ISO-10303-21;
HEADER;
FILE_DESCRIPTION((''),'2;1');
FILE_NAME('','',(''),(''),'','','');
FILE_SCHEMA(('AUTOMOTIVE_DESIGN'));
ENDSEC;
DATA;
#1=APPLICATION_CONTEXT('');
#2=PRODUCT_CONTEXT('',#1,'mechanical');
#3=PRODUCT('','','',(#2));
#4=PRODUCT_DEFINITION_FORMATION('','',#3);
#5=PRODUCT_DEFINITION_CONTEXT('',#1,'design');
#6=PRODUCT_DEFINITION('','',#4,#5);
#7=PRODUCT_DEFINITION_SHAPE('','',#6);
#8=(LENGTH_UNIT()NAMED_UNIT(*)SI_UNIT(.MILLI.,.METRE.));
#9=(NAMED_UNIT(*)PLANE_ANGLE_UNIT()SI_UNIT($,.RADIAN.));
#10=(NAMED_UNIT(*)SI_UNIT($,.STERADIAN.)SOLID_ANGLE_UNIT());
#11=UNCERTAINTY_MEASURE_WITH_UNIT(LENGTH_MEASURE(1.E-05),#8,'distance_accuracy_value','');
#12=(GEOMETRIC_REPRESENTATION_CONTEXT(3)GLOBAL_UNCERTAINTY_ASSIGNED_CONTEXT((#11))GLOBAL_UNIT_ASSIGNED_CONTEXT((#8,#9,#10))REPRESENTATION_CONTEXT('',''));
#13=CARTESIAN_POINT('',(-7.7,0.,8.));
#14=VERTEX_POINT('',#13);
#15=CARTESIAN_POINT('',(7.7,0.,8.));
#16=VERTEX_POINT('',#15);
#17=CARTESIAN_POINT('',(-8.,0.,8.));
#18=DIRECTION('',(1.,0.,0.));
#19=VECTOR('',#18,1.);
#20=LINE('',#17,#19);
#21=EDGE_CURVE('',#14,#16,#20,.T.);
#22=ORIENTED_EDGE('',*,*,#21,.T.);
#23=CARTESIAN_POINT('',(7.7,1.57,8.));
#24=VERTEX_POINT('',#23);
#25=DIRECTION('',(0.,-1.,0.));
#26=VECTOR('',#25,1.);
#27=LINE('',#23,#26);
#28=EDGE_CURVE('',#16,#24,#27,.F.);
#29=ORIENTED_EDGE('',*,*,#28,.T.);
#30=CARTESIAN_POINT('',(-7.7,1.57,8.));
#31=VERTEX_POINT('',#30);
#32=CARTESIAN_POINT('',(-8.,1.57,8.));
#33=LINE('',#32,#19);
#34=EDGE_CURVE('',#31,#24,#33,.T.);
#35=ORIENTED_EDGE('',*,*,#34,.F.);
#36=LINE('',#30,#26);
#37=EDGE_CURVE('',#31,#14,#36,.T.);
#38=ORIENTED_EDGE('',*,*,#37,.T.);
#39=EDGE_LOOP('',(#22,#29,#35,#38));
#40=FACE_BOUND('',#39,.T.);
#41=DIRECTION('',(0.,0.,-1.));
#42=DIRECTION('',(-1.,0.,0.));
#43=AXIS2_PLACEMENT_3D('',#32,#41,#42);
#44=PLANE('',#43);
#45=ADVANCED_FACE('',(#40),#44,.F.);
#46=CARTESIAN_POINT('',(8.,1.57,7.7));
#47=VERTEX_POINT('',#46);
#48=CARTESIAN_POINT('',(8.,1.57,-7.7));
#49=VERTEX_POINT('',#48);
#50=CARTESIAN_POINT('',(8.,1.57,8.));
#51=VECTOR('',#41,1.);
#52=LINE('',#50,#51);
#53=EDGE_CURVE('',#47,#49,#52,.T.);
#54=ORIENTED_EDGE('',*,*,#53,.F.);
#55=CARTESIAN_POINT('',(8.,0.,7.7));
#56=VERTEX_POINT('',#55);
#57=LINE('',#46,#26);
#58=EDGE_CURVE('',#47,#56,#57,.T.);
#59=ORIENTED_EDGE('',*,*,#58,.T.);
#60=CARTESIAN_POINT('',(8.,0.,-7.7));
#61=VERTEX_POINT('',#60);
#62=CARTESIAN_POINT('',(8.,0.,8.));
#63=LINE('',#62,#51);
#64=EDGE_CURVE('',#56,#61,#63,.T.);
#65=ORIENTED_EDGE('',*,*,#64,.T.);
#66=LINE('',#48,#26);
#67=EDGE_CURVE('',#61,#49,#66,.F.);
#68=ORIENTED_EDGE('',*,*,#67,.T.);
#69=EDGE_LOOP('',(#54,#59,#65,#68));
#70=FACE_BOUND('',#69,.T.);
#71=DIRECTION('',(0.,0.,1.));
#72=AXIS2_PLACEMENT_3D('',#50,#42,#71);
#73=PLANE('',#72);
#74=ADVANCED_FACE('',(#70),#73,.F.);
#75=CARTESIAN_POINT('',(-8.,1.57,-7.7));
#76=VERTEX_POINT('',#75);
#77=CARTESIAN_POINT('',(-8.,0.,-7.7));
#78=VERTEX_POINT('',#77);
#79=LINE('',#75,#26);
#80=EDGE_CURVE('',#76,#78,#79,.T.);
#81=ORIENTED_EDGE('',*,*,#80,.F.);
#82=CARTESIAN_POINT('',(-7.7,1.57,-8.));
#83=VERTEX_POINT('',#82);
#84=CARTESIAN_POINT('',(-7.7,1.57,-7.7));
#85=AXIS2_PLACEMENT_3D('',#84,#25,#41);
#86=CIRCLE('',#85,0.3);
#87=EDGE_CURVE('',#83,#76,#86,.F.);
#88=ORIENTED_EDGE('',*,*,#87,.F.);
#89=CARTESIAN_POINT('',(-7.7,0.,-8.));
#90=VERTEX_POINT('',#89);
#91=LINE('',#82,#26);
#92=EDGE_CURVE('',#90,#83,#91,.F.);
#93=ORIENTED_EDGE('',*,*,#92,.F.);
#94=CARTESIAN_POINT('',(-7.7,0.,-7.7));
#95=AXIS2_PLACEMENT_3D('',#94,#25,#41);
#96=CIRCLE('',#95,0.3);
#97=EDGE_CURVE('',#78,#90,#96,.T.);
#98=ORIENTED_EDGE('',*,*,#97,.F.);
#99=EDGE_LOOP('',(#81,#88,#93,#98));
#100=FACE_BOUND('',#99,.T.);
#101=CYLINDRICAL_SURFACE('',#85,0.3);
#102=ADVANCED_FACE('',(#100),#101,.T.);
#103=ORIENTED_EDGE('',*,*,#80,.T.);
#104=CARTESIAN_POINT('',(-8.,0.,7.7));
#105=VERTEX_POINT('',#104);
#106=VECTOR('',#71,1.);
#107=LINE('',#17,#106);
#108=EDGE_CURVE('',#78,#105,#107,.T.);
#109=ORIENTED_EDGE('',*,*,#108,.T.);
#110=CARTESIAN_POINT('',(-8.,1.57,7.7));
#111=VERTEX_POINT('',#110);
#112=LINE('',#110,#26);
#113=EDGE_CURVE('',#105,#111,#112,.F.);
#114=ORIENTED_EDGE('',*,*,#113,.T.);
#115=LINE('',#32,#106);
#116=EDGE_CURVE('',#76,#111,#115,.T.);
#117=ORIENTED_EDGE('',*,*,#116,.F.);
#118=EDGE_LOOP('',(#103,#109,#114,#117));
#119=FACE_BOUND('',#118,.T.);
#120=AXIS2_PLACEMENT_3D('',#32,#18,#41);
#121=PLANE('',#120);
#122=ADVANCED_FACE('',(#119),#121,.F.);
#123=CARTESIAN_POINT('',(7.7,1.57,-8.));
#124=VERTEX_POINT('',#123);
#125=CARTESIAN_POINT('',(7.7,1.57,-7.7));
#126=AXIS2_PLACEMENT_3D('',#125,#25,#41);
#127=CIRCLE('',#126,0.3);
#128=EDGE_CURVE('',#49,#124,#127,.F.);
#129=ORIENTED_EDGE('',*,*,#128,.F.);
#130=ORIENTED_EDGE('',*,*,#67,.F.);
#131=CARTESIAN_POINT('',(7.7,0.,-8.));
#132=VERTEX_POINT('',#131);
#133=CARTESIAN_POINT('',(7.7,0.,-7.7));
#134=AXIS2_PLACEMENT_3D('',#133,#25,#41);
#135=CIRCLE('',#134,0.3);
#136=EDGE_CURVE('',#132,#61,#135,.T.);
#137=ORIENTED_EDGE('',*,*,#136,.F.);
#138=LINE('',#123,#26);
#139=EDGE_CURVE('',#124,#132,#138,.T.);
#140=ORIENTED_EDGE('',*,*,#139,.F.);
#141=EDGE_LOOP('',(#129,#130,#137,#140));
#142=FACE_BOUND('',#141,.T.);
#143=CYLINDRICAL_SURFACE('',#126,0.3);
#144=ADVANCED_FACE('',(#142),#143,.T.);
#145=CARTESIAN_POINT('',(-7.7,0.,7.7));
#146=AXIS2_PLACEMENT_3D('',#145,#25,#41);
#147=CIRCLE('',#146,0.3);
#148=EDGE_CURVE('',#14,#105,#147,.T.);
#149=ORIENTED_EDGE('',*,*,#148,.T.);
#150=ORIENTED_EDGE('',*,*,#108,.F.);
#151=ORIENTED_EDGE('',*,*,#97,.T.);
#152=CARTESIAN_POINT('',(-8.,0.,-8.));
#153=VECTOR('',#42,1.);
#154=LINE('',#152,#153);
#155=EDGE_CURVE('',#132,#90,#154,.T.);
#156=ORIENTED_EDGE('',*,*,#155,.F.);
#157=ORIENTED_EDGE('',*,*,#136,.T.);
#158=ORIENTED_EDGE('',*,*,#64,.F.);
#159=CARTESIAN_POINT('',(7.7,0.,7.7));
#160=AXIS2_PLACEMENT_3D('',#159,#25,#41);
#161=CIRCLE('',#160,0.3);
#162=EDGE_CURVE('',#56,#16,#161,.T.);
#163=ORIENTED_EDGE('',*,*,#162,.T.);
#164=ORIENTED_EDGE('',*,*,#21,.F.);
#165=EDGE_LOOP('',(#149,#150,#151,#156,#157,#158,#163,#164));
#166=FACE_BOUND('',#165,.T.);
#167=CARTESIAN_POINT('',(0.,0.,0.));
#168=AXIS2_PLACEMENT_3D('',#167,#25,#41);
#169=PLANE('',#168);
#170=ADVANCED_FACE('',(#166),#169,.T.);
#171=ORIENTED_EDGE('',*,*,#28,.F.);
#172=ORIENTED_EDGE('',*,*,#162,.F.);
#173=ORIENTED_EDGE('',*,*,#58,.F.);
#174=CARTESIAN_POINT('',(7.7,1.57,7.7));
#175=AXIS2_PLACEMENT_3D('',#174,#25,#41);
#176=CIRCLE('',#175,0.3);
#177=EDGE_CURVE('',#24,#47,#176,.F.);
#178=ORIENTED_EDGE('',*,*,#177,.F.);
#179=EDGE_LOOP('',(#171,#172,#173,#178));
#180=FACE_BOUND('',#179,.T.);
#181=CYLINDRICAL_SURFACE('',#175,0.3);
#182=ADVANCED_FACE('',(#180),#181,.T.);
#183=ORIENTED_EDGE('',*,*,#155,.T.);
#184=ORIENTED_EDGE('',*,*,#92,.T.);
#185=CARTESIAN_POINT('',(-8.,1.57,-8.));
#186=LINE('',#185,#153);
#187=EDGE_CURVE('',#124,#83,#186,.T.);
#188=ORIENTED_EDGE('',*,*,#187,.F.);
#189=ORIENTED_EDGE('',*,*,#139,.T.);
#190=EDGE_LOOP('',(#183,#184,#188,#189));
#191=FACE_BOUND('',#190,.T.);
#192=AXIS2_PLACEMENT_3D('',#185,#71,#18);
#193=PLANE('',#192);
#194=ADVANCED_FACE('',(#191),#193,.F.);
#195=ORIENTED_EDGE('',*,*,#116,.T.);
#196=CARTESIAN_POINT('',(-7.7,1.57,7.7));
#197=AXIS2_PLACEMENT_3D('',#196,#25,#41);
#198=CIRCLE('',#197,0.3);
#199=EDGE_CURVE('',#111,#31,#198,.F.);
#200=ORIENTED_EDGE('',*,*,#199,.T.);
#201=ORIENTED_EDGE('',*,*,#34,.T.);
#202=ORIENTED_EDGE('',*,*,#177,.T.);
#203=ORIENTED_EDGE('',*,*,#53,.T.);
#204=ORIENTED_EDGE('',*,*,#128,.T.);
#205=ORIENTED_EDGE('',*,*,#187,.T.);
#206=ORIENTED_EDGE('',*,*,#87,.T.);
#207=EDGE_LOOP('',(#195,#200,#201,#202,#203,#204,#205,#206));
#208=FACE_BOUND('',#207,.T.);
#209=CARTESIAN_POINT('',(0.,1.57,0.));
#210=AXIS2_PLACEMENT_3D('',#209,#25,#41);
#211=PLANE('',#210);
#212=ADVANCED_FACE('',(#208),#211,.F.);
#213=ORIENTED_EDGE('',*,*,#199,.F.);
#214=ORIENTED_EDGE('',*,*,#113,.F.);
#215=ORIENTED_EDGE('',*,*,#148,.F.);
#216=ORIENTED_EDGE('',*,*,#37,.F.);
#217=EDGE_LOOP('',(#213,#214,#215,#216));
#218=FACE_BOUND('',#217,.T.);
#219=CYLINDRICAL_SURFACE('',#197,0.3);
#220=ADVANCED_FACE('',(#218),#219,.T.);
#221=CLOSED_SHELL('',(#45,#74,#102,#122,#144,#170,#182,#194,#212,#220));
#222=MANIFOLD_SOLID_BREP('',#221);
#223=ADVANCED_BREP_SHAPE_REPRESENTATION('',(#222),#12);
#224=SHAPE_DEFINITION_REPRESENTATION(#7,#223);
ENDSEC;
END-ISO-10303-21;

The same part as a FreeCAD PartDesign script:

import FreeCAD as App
import Part
import Sketcher
Q = App.Units.Quantity


def edges_at(feature, points):
    """Names of the edges that pass closest to the given points."""
    edges = feature.Shape.Edges
    near = lambda p: min(range(len(edges)), key=lambda i: edges[i].distToShape(Part.Vertex(*p))[0])
    return sorted({f"Edge{near(p) + 1}" for p in points})


def add_polygon(sketch, points):
    """Adds a closed chain of lines whose ends are joined by coincident constraints."""
    first, n = sketch.GeometryCount, len(points)
    for a, b in zip(points, points[1:] + points[:1]):
        sketch.addGeometry(Part.LineSegment(App.Vector(*a, 0), App.Vector(*b, 0)), False)
    for i in range(n):
        sketch.addConstraint(Sketcher.Constraint("Coincident", first + i, 2, first + (i + 1) % n, 1))

doc = App.newDocument("Part")
body = doc.addObject("PartDesign::Body", "Body")

# Sketch on XZ plane
sketch1 = body.newObject("Sketcher::SketchObject", "Sketch")
sketch1.AttachmentSupport = (doc.getObject("XZ_Plane"), [""])
sketch1.MapMode = "FlatFace"
add_polygon(sketch1, [(-8, -8), (-8, 8), (8, 8), (8, -8)])  # lines 0-3
sketch1.addConstraint([
    Sketcher.Constraint("Vertical", 0),
    Sketcher.Constraint("Horizontal", 1),
    Sketcher.Constraint("Vertical", 2),
    Sketcher.Constraint("Horizontal", 3),
    Sketcher.Constraint("Symmetric", 0, 2, 2, 2, -1, 1),
    Sketcher.Constraint("Equal", 3, 0),
    Sketcher.Constraint("DistanceX", 1, 1, 1, 2, Q("16 mm")),
])
pad1 = body.newObject("PartDesign::Pad", "Pad")
pad1.Profile = sketch1
pad1.Length = 1.57
pad1.Reversed = True
doc.recompute()

fillet = body.newObject("PartDesign::Fillet", "Fillet")
fillet.Base = (pad1, edges_at(pad1, [
    (8, 0.785, 8),
    (-8, 0.785, 8),
    (-8, 0.785, -8),
    (8, 0.785, -8),
]))
fillet.Radius = 0.3

doc.recompute()
